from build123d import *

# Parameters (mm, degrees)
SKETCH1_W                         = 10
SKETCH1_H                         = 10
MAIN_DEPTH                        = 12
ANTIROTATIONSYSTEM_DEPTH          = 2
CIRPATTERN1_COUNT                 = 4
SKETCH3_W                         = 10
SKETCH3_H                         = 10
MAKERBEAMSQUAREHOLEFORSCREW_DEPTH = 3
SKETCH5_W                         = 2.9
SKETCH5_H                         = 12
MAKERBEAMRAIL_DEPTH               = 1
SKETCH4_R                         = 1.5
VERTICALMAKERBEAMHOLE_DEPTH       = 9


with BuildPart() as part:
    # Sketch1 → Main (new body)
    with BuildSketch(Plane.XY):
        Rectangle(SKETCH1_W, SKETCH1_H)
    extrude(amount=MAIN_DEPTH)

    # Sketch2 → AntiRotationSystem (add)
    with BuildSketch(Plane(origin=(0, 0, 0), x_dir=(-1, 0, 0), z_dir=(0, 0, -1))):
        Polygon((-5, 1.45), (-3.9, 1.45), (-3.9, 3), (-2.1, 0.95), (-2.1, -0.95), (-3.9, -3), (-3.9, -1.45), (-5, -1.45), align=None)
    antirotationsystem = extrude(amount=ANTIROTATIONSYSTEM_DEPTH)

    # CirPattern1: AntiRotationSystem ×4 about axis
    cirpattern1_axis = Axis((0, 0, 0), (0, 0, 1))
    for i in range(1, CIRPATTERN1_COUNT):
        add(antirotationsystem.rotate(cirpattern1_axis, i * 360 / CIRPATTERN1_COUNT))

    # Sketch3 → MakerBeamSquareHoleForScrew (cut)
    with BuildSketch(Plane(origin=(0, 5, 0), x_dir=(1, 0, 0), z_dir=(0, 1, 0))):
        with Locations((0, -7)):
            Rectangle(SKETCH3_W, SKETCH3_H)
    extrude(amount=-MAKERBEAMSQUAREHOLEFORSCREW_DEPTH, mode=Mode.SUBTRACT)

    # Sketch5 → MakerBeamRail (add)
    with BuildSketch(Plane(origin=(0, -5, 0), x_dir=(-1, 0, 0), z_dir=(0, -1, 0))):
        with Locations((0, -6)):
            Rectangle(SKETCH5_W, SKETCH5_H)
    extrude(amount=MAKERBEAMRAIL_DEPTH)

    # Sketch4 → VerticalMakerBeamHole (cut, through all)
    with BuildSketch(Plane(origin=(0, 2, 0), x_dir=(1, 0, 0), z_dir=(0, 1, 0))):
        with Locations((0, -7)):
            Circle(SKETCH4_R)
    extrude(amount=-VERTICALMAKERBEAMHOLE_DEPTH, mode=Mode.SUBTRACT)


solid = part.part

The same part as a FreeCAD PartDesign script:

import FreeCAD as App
import Part
import Sketcher
from FreeCAD import Vector
Q = App.Units.Quantity

doc = App.newDocument("Part")
body = doc.addObject("PartDesign::Body", "Body")

# Sketch on XY plane
sketch1 = doc.addObject("Sketcher::SketchObject", "Sketch")
body.addObject(sketch1)
sketch1.AttachmentSupport = (doc.XY_Plane, [""])
sketch1.MapMode = "FlatFace"
sketch1.addGeometry([
    Part.LineSegment(Vector(-5, 5, 0), Vector(-5, -5, 0)),
    Part.LineSegment(Vector(-5, -5, 0), Vector(5, -5, 0)),
    Part.LineSegment(Vector(5, -5, 0), Vector(5, 5, 0)),
    Part.LineSegment(Vector(5, 5, 0), Vector(-5, 5, 0)),
], False)
sketch1.addConstraint([
    Sketcher.Constraint("Coincident", 0, 2, 1, 1),
    Sketcher.Constraint("Coincident", 1, 2, 2, 1),
    Sketcher.Constraint("Coincident", 2, 2, 3, 1),
    Sketcher.Constraint("Coincident", 3, 2, 0, 1),
    Sketcher.Constraint("Vertical", 0),
    Sketcher.Constraint("Horizontal", 1),
    Sketcher.Constraint("Vertical", 2),
    Sketcher.Constraint("Horizontal", 3),
    Sketcher.Constraint("Symmetric", 0, 2, 2, 2, -1, 1),
    Sketcher.Constraint("Equal", 3, 0),
    Sketcher.Constraint("DistanceX", 1, 1, 1, 2, Q("10 mm")),
])
pad1 = doc.addObject("PartDesign::Pad", "Pad")
body.addObject(pad1)
pad1.Profile = sketch1
pad1.Length = 12

# Sketch on XY plane
sketch2 = doc.addObject("Sketcher::SketchObject", "Sketch001")
body.addObject(sketch2)
sketch2.AttachmentSupport = (doc.XY_Plane, [""])
sketch2.MapMode = "FlatFace"
sketch2.addGeometry([
    Part.LineSegment(Vector(3.9, 1.45, 0), Vector(5, 1.45, 0)),  # 0
    Part.LineSegment(Vector(5, 1.45, 0), Vector(5, -1.45, 0)),  # 1
    Part.LineSegment(Vector(5, -1.45, 0), Vector(3.9, -1.45, 0)),  # 2
    Part.LineSegment(Vector(3.9, -1.45, 0), Vector(3.9, -3, 0)),  # 3
    Part.LineSegment(Vector(3.9, -3, 0), Vector(2.1, -0.95, 0)),  # 4
    Part.LineSegment(Vector(2.1, -0.95, 0), Vector(2.1, 0.95, 0)),  # 5
    Part.LineSegment(Vector(2.1, 0.95, 0), Vector(3.9, 3, 0)),  # 6
    Part.LineSegment(Vector(3.9, 3, 0), Vector(3.9, 1.45, 0)),  # 7
], False)
sketch2.addConstraint([
    Sketcher.Constraint("Coincident", 0, 2, 1, 1),
    Sketcher.Constraint("Coincident", 1, 2, 2, 1),
    Sketcher.Constraint("Coincident", 2, 2, 3, 1),
    Sketcher.Constraint("Coincident", 3, 2, 4, 1),
    Sketcher.Constraint("Coincident", 4, 2, 5, 1),
    Sketcher.Constraint("Coincident", 5, 2, 6, 1),
    Sketcher.Constraint("Coincident", 6, 2, 7, 1),
    Sketcher.Constraint("Coincident", 7, 2, 0, 1),
    Sketcher.Constraint("Horizontal", 0),
    Sketcher.Constraint("Vertical", 1),
    Sketcher.Constraint("Horizontal", 2),
    Sketcher.Constraint("Vertical", 3),
    Sketcher.Constraint("Vertical", 5),
    Sketcher.Constraint("Vertical", 7),
    Sketcher.Constraint("Symmetric", 3, 2, 6, 2, -1),
    Sketcher.Constraint("Equal", 3, 7),
    Sketcher.Constraint("Equal", 4, 6),
    Sketcher.Constraint("DistanceX", 0, 1, 0, 2, Q("1.1 mm")),
    Sketcher.Constraint("DistanceY", 1, 2, 1, 1, Q("2.9 mm")),
    Sketcher.Constraint("DistanceY", 5, 1, 5, 2, Q("1.9 mm")),
    Sketcher.Constraint("DistanceX", -1, 1, 0, 2, Q("5 mm")),
    Sketcher.Constraint("DistanceY", 3, 2, -1, 1, Q("3 mm")),
    Sketcher.Constraint("DistanceX", -1, 1, 4, 2, Q("2.1 mm")),
])
pad2 = doc.addObject("PartDesign::Pad", "Pad001")
body.addObject(pad2)
pad2.Profile = sketch2
pad2.Length = 2
pad2.Reversed = True
doc.recompute()

polarpattern = doc.addObject("PartDesign::PolarPattern", "PolarPattern")
body.addObject(polarpattern)
polarpattern.Originals = [pad2]
polarpattern.Axis = (doc.Z_Axis, [""])
polarpattern.Angle = 360
polarpattern.Occurrences = 4
body.Tip = polarpattern

# Sketch on XZ plane
sketch3 = doc.addObject("Sketcher::SketchObject", "Sketch002")
body.addObject(sketch3)
sketch3.AttachmentSupport = (doc.XZ_Plane, [""])
sketch3.MapMode = "FlatFace"
sketch3.AttachmentOffset = App.Placement(Vector(0, 0, -5), App.Rotation())
sketch3.addGeometry([
    Part.LineSegment(Vector(-5, 2, 0), Vector(-5, 12, 0)),
    Part.LineSegment(Vector(-5, 12, 0), Vector(5, 12, 0)),
    Part.LineSegment(Vector(5, 12, 0), Vector(5, 2, 0)),
    Part.LineSegment(Vector(5, 2, 0), Vector(-5, 2, 0)),
], False)
sketch3.addConstraint([
    Sketcher.Constraint("Coincident", 0, 2, 1, 1),
    Sketcher.Constraint("Coincident", 1, 2, 2, 1),
    Sketcher.Constraint("Coincident", 2, 2, 3, 1),
    Sketcher.Constraint("Coincident", 3, 2, 0, 1),
    Sketcher.Constraint("Vertical", 0),
    Sketcher.Constraint("Horizontal", 1),
    Sketcher.Constraint("Vertical", 2),
    Sketcher.Constraint("Horizontal", 3),
    Sketcher.Constraint("Equal", 3, 0),
    Sketcher.Constraint("DistanceX", 1, 1, 1, 2, Q("10 mm")),
    Sketcher.Constraint("DistanceX", 0, 2, -1, 1, Q("5 mm")),
    Sketcher.Constraint("DistanceY", -1, 1, 0, 2, Q("12 mm")),
])
pocket1 = doc.addObject("PartDesign::Pocket", "Pocket")
body.addObject(pocket1)
pocket1.Profile = sketch3
pocket1.Length = 3
pocket1.Reversed = True

# Sketch on XZ plane
sketch4 = doc.addObject("Sketcher::SketchObject", "Sketch003")
body.addObject(sketch4)
sketch4.AttachmentSupport = (doc.XZ_Plane, [""])
sketch4.MapMode = "FlatFace"
sketch4.AttachmentOffset = App.Placement(Vector(0, 0, 5), App.Rotation())
sketch4.addGeometry([
    Part.LineSegment(Vector(1.45, 0, 0), Vector(1.45, 12, 0)),
    Part.LineSegment(Vector(1.45, 12, 0), Vector(-1.45, 12, 0)),
    Part.LineSegment(Vector(-1.45, 12, 0), Vector(-1.45, 0, 0)),
    Part.LineSegment(Vector(-1.45, 0, 0), Vector(1.45, 0, 0)),
], False)
sketch4.addConstraint([
    Sketcher.Constraint("Coincident", 0, 2, 1, 1),
    Sketcher.Constraint("Coincident", 1, 2, 2, 1),
    Sketcher.Constraint("Coincident", 2, 2, 3, 1),
    Sketcher.Constraint("Coincident", 3, 2, 0, 1),
    Sketcher.Constraint("Vertical", 0),
    Sketcher.Constraint("Horizontal", 1),
    Sketcher.Constraint("Vertical", 2),
    Sketcher.Constraint("Horizontal", 3),
    Sketcher.Constraint("Symmetric", 2, 2, 3, 2, -1, 1),
    Sketcher.Constraint("DistanceY", 0, 1, 0, 2, Q("12 mm")),
    Sketcher.Constraint("DistanceX", 1, 2, 1, 1, Q("2.9 mm")),
])
pad3 = doc.addObject("PartDesign::Pad", "Pad002")
body.addObject(pad3)
pad3.Profile = sketch4
pad3.Length = 1

# Sketch on XZ plane
sketch5 = doc.addObject("Sketcher::SketchObject", "Sketch004")
body.addObject(sketch5)
sketch5.AttachmentSupport = (doc.XZ_Plane, [""])
sketch5.MapMode = "FlatFace"
sketch5.AttachmentOffset = App.Placement(Vector(0, 0, -2), App.Rotation())
sketch5.addGeometry(Part.Circle(Vector(0, 7, 0), Vector(0, 0, 1), 1.5), False)
sketch5.addConstraint([
    Sketcher.Constraint("PointOnObject", 0, 3, -2),
    Sketcher.Constraint("Diameter", 0, Q("3 mm")),
    Sketcher.Constraint("DistanceY", -1, 1, 0, 3, Q("7 mm")),
])
pocket2 = doc.addObject("PartDesign::Pocket", "Pocket001")
body.addObject(pocket2)
pocket2.Profile = sketch5
pocket2.Type = "ThroughAll"
pocket2.Reversed = True

doc.recompute()
